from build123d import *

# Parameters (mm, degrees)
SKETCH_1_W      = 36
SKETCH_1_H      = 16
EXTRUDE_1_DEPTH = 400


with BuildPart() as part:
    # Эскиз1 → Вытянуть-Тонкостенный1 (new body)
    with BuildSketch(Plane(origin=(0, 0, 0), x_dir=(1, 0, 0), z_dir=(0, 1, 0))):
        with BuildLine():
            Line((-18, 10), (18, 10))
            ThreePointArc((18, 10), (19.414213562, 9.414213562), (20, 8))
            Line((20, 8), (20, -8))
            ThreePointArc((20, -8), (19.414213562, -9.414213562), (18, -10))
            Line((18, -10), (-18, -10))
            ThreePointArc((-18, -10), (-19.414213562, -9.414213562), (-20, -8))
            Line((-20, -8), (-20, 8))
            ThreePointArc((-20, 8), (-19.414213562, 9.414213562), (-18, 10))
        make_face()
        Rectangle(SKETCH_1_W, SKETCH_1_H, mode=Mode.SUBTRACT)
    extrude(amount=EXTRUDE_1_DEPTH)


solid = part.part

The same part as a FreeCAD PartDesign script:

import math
import FreeCAD as App
import Part
import Sketcher

V = App.Vector

doc = App.newDocument("Part")
body = doc.addObject("PartDesign::Body", "Body")

sketch1 = body.newObject("Sketcher::SketchObject", "Sketch")
sketch1.AttachmentSupport = (doc.getObject("XZ_Plane"), [""])
sketch1.MapMode = "FlatFace"
sketch1.addGeometry([
    Part.LineSegment(V(18, -10, 0), V(-18, -10, 0)),
    Part.ArcOfCircle(Part.Circle(V(-18, -8, 0), V(0, 0, 1), 2), math.radians(-180), math.radians(-90)),
    Part.LineSegment(V(-20, -8, 0), V(-20, 8, 0)),
    Part.ArcOfCircle(Part.Circle(V(-18, 8, 0), V(0, 0, 1), 2), math.radians(90), math.radians(180)),
    Part.LineSegment(V(-18, 10, 0), V(18, 10, 0)),
    Part.ArcOfCircle(Part.Circle(V(18, 8, 0), V(0, 0, 1), 2), math.radians(0), math.radians(90)),
    Part.LineSegment(V(20, 8, 0), V(20, -8, 0)),
    Part.ArcOfCircle(Part.Circle(V(18, -8, 0), V(0, 0, 1), 2), math.radians(-90), math.radians(0)),
    Part.LineSegment(V(-18, 8, 0), V(-18, -8, 0)),
    Part.LineSegment(V(-18, -8, 0), V(18, -8, 0)),
    Part.LineSegment(V(18, -8, 0), V(18, 8, 0)),
    Part.LineSegment(V(18, 8, 0), V(-18, 8, 0)),
], False)
sketch1.addConstraint([
    Sketcher.Constraint("Tangent", 0, 2, 1, 2),
    Sketcher.Constraint("Tangent", 1, 1, 2, 1),
    Sketcher.Constraint("Tangent", 2, 2, 3, 2),
    Sketcher.Constraint("Tangent", 3, 1, 4, 1),
    Sketcher.Constraint("Tangent", 4, 2, 5, 2),
    Sketcher.Constraint("Tangent", 5, 1, 6, 1),
    Sketcher.Constraint("Tangent", 6, 2, 7, 2),
    Sketcher.Constraint("Tangent", 7, 1, 0, 1),
    Sketcher.Constraint("Coincident", 8, 2, 9, 1),
    Sketcher.Constraint("Coincident", 9, 2, 10, 1),
    Sketcher.Constraint("Coincident", 10, 2, 11, 1),
    Sketcher.Constraint("Coincident", 11, 2, 8, 1),
    Sketcher.Constraint("Horizontal", 0),
    Sketcher.Constraint("Vertical", 2),
    Sketcher.Constraint("Horizontal", 4),
    Sketcher.Constraint("Vertical", 6),
    Sketcher.Constraint("Vertical", 8),
    Sketcher.Constraint("Horizontal", 9),
    Sketcher.Constraint("Vertical", 10),
    Sketcher.Constraint("Horizontal", 11),
    Sketcher.Constraint("Coincident", 8, 2, 1, 3),
    Sketcher.Constraint("Coincident", 9, 2, 7, 3),
    Sketcher.Constraint("Coincident", 10, 2, 5, 3),
    Sketcher.Constraint("Equal", 1, 3),
    Sketcher.Constraint("Symmetric", 1, 3, 5, 3, -1, 1),
    Sketcher.Constraint("Radius", 1, 2.0),
    Sketcher.Constraint("DistanceX", 0, 2, 0, 1, 36.0),
    Sketcher.Constraint("DistanceY", 2, 1, 2, 2, 16.0),
])
pad1 = body.newObject("PartDesign::Pad", "Pad")
pad1.Profile = sketch1
pad1.Length = 400
pad1.Reversed = True

doc.recompute()
